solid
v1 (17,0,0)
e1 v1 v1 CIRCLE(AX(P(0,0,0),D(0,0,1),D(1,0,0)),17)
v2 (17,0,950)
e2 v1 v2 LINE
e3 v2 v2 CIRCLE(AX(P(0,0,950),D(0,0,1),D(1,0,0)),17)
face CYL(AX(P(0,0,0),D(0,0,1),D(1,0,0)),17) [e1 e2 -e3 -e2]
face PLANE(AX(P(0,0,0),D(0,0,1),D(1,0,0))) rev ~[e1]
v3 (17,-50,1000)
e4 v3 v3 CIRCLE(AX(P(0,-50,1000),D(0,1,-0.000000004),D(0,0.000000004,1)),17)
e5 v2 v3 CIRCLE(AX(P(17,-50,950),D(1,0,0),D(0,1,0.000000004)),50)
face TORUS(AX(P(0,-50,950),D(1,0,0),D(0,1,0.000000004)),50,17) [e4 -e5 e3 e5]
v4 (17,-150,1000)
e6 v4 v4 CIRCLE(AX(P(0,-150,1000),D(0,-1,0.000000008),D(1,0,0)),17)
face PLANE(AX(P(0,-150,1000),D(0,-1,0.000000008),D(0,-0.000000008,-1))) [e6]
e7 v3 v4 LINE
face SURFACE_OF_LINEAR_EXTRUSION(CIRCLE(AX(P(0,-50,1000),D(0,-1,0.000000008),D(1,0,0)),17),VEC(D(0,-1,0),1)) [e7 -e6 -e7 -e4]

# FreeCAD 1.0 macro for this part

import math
import FreeCAD as App
import Part
import Sketcher
from FreeCAD import Vector
Q = App.Units.Quantity

doc = App.newDocument("Part")
body = doc.addObject("PartDesign::Body", "Body")

sketch1 = body.newObject("Sketcher::SketchObject", "Sketch")
sketch1.AttachmentSupport = (doc.getObject("XY_Plane"), [""])
sketch1.MapMode = "FlatFace"
sketch1.addGeometry(Part.Circle(Vector(0, 0, 0), Vector(0, 0, 1), 17), False)
sketch1.addConstraint(Sketcher.Constraint("Coincident", 0, 3, -1, 1))
sketch1.addConstraint(Sketcher.Constraint("Diameter", 0, Q("34 mm")))

sketch2 = body.newObject("Sketcher::SketchObject", "Sketch001")
sketch2.AttachmentSupport = (doc.getObject("YZ_Plane"), [""])
sketch2.MapMode = "FlatFace"
sketch2.addGeometry(Part.LineSegment(Vector(0, 0, 0), Vector(0, 950, 0)), False)
sketch2.addGeometry(Part.ArcOfCircle(Part.Circle(Vector(-50, 950, 0), Vector(0, 0, 1), 50), math.radians(0), math.radians(90)), False)
sketch2.addGeometry(Part.LineSegment(Vector(-50, 1000, 0), Vector(-150, 1000, 0)), False)
sketch2.addConstraint(Sketcher.Constraint("Tangent", 0, 2, 1, 1))
sketch2.addConstraint(Sketcher.Constraint("Tangent", 1, 2, 2, 1))
sketch2.addConstraint(Sketcher.Constraint("Vertical", 0))
sketch2.addConstraint(Sketcher.Constraint("Horizontal", 2))
sketch2.addConstraint(Sketcher.Constraint("Coincident", 0, 1, -1, 1))
sketch2.addConstraint(Sketcher.Constraint("Radius", 1, Q("50 mm")))
sketch2.addConstraint(Sketcher.Constraint("DistanceX", 2, 2, 2, 1, Q("100 mm")))
sketch2.addConstraint(Sketcher.Constraint("DistanceY", 0, 1, 0, 2, Q("950 mm")))
doc.recompute()

additivepipe = body.newObject("PartDesign::AdditivePipe", "AdditivePipe")
additivepipe.Profile = sketch1
additivepipe.Spine = (sketch2, ["Edge1", "Edge2", "Edge3"])

doc.recompute()
